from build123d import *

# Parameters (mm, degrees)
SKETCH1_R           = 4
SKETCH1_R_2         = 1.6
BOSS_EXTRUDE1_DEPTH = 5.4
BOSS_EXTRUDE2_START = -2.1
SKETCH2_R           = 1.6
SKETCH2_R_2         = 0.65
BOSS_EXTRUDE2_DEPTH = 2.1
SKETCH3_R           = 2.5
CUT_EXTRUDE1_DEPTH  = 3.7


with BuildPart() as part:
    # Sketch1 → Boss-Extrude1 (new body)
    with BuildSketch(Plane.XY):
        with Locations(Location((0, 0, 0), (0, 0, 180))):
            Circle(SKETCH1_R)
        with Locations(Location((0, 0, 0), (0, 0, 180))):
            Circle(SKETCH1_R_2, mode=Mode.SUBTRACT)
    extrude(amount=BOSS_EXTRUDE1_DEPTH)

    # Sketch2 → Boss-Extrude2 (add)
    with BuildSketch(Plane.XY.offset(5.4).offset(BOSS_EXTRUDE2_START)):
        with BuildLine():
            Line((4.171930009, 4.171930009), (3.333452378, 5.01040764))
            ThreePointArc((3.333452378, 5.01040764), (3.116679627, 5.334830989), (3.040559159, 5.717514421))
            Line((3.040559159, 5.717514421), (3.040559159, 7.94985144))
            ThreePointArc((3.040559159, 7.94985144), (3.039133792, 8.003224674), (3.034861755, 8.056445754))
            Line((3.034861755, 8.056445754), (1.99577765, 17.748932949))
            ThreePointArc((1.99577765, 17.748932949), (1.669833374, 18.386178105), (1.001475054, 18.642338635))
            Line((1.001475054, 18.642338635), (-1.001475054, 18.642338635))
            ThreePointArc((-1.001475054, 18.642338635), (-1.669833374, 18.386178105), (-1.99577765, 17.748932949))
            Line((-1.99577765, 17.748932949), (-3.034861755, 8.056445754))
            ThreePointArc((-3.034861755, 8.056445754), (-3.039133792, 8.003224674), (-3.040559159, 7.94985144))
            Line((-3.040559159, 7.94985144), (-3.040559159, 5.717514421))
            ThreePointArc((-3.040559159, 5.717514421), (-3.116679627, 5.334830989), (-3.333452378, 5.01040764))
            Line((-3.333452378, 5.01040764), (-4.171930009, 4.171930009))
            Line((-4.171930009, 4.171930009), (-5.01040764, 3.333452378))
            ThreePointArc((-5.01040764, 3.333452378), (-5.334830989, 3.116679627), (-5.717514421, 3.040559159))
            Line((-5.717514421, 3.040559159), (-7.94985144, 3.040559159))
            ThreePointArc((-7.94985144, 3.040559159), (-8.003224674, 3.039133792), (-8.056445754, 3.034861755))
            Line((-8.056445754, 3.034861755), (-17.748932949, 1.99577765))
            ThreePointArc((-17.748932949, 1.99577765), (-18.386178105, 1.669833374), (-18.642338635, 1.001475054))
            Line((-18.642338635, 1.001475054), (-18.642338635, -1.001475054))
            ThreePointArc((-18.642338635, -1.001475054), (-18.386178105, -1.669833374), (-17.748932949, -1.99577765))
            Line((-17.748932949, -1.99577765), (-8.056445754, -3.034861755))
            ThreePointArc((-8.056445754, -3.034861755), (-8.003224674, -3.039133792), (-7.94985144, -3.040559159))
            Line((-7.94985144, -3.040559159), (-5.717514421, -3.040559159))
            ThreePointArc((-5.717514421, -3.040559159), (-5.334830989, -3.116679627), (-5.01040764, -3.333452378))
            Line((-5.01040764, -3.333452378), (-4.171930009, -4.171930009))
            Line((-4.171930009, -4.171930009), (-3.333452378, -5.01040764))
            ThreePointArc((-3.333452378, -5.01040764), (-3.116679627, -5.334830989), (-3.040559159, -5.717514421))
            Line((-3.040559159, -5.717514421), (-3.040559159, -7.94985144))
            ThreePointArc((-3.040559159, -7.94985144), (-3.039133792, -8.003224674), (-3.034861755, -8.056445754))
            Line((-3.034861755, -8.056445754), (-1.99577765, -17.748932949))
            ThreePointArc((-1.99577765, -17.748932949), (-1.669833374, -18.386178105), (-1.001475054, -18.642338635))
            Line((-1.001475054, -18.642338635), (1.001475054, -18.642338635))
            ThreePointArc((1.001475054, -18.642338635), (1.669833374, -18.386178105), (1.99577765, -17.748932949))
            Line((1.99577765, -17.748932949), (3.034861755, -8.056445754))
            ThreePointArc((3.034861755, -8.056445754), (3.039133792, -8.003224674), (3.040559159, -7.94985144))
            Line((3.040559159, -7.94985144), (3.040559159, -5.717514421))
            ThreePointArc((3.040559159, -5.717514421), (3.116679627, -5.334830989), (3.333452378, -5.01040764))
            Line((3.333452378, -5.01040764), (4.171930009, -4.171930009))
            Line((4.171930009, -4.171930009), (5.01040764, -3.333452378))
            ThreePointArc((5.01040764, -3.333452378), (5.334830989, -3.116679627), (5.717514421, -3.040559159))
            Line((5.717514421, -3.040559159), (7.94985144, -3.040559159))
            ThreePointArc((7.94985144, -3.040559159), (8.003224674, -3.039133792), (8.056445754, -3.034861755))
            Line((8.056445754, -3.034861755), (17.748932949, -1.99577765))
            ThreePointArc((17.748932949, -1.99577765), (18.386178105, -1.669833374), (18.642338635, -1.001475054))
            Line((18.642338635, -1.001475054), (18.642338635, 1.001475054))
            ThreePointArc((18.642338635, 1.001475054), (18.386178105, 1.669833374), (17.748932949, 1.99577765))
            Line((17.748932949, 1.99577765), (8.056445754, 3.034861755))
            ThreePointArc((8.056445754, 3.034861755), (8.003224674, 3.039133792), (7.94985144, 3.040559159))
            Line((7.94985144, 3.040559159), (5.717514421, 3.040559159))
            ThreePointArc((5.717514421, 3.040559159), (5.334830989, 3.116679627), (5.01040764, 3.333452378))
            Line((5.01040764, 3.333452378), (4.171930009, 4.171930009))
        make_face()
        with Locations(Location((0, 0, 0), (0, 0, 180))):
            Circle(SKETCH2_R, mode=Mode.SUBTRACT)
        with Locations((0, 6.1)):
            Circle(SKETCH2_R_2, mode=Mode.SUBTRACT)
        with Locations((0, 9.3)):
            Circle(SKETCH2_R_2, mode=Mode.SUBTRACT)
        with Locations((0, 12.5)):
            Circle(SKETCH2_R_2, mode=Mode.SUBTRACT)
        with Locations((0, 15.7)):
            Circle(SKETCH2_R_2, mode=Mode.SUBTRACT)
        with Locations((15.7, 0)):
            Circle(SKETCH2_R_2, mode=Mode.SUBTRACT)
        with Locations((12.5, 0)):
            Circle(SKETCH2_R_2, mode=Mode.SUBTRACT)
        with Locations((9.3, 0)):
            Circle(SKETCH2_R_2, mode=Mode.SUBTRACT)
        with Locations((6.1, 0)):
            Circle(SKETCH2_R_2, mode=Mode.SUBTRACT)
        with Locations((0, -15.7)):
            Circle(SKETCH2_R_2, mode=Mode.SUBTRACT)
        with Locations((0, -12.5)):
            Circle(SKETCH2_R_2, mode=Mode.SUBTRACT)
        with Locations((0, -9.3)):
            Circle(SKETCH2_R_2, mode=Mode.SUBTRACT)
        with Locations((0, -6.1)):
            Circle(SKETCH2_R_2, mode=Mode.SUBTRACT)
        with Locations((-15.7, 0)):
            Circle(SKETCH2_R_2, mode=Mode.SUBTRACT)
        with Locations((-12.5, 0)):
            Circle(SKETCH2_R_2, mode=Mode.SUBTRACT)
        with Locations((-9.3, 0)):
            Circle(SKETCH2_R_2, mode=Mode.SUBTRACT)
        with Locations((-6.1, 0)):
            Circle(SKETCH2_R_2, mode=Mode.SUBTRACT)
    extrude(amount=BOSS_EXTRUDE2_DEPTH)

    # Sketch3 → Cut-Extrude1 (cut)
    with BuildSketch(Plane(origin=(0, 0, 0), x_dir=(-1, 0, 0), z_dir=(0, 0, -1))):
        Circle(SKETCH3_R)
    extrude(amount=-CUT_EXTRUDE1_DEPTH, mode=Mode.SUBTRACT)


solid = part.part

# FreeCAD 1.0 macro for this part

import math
import FreeCAD as App
import Part
import Sketcher
from FreeCAD import Vector
Q = App.Units.Quantity

doc = App.newDocument("Part")
body = doc.addObject("PartDesign::Body", "Body")

sketch1 = doc.addObject("Sketcher::SketchObject", "Sketch")
body.addObject(sketch1)
sketch1.AttachmentSupport = (doc.XY_Plane, [""])
sketch1.MapMode = "FlatFace"
sketch1.addGeometry(Part.Circle(Vector(0, 0, 0), Vector(0, 0, 1), 4), False)
sketch1.addGeometry(Part.Circle(Vector(0, 0, 0), Vector(0, 0, 1), 1.6), False)
sketch1.addConstraint(Sketcher.Constraint("Coincident", 0, 3, -1, 1))
sketch1.addConstraint(Sketcher.Constraint("Coincident", 1, 3, -1, 1))
sketch1.addConstraint(Sketcher.Constraint("Diameter", 0, Q("8 mm")))
sketch1.addConstraint(Sketcher.Constraint("Diameter", 1, Q("3.2 mm")))
pad1 = doc.addObject("PartDesign::Pad", "Pad")
body.addObject(pad1)
pad1.Profile = sketch1
pad1.Length = 5.4

sketch2 = doc.addObject("Sketcher::SketchObject", "Sketch001")
body.addObject(sketch2)
sketch2.AttachmentSupport = (doc.XY_Plane, [""])
sketch2.MapMode = "FlatFace"
sketch2.AttachmentOffset = App.Placement(Vector(0, 0, 3.3), App.Rotation())
sketch2.addGeometry(Part.ArcOfCircle(Part.Circle(Vector(4.040559, 5.717514, 0), Vector(0, 0, 1), 1), math.radians(-180), math.radians(-135)), False)
sketch2.addGeometry(Part.LineSegment(Vector(3.040559, 5.717514, 0), Vector(3.040559, 7.949851, 0)), False)
sketch2.addGeometry(Part.ArcOfCircle(Part.Circle(Vector(2.040559, 7.949851, 0), Vector(0, 0, 1), 1), math.radians(0), math.radians(6.119029)), False)
sketch2.addGeometry(Part.LineSegment(Vector(3.034862, 8.056446, 0), Vector(1.995778, 17.748933, 0)), False)
sketch2.addGeometry(Part.ArcOfCircle(Part.Circle(Vector(1.001475, 17.642339, 0), Vector(0, 0, 1), 1), math.radians(6.11903), math.radians(90)), False)
sketch2.addGeometry(Part.LineSegment(Vector(1.001475, 18.642339, 0), Vector(-1.001475, 18.642339, 0)), False)
sketch2.addGeometry(Part.ArcOfCircle(Part.Circle(Vector(-1.001475, 17.642339, 0), Vector(0, 0, 1), 1), math.radians(90), math.radians(173.88097)), False)
sketch2.addGeometry(Part.LineSegment(Vector(-1.995778, 17.748933, 0), Vector(-3.034862, 8.056446, 0)), False)
sketch2.addGeometry(Part.ArcOfCircle(Part.Circle(Vector(-2.040559, 7.949851, 0), Vector(0, 0, 1), 1), math.radians(173.880971), math.radians(180)), False)
sketch2.addGeometry(Part.LineSegment(Vector(-3.040559, 7.949851, 0), Vector(-3.040559, 5.717514, 0)), False)
sketch2.addGeometry(Part.ArcOfCircle(Part.Circle(Vector(-4.040559, 5.717514, 0), Vector(0, 0, 1), 1), math.radians(-45), math.radians(0)), False)
sketch2.addGeometry(Part.LineSegment(Vector(-3.333452, 5.010408, 0), Vector(-5.010408, 3.333452, 0)), False)
sketch2.addGeometry(Part.ArcOfCircle(Part.Circle(Vector(-5.717514, 4.040559, 0), Vector(0, 0, 1), 1), math.radians(-90), math.radians(-45)), False)
sketch2.addGeometry(Part.LineSegment(Vector(-5.717514, 3.040559, 0), Vector(-7.949851, 3.040559, 0)), False)
sketch2.addGeometry(Part.ArcOfCircle(Part.Circle(Vector(-7.949851, 2.040559, 0), Vector(0, 0, 1), 1), math.radians(90), math.radians(96.119029)), False)
sketch2.addGeometry(Part.LineSegment(Vector(-8.056446, 3.034862, 0), Vector(-17.748933, 1.995778, 0)), False)
sketch2.addGeometry(Part.ArcOfCircle(Part.Circle(Vector(-17.642339, 1.001475, 0), Vector(0, 0, 1), 1), math.radians(96.11903), math.radians(180)), False)
sketch2.addGeometry(Part.LineSegment(Vector(-18.642339, 1.001475, 0), Vector(-18.642339, -1.001475, 0)), False)
sketch2.addGeometry(Part.ArcOfCircle(Part.Circle(Vector(-17.642339, -1.001475, 0), Vector(0, 0, 1), 1), math.radians(180), math.radians(263.88097)), False)
sketch2.addGeometry(Part.LineSegment(Vector(-17.748933, -1.995778, 0), Vector(-8.056446, -3.034862, 0)), False)
sketch2.addGeometry(Part.ArcOfCircle(Part.Circle(Vector(-7.949851, -2.040559, 0), Vector(0, 0, 1), 1), math.radians(-96.119029), math.radians(-90)), False)
sketch2.addGeometry(Part.LineSegment(Vector(-7.949851, -3.040559, 0), Vector(-5.717514, -3.040559, 0)), False)
sketch2.addGeometry(Part.ArcOfCircle(Part.Circle(Vector(-5.717514, -4.040559, 0), Vector(0, 0, 1), 1), math.radians(45), math.radians(90)), False)
sketch2.addGeometry(Part.LineSegment(Vector(-5.010408, -3.333452, 0), Vector(-3.333452, -5.010408, 0)), False)
sketch2.addGeometry(Part.ArcOfCircle(Part.Circle(Vector(-4.040559, -5.717514, 0), Vector(0, 0, 1), 1), math.radians(0), math.radians(45)), False)
sketch2.addGeometry(Part.LineSegment(Vector(-3.040559, -5.717514, 0), Vector(-3.040559, -7.949851, 0)), False)
sketch2.addGeometry(Part.ArcOfCircle(Part.Circle(Vector(-2.040559, -7.949851, 0), Vector(0, 0, 1), 1), math.radians(-180), math.radians(-173.880971)), False)
sketch2.addGeometry(Part.LineSegment(Vector(-3.034862, -8.056446, 0), Vector(-1.995778, -17.748933, 0)), False)
sketch2.addGeometry(Part.ArcOfCircle(Part.Circle(Vector(-1.001475, -17.642339, 0), Vector(0, 0, 1), 1), math.radians(-173.88097), math.radians(-90)), False)
sketch2.addGeometry(Part.LineSegment(Vector(-1.001475, -18.642339, 0), Vector(1.001475, -18.642339, 0)), False)
sketch2.addGeometry(Part.ArcOfCircle(Part.Circle(Vector(1.001475, -17.642339, 0), Vector(0, 0, 1), 1), math.radians(-90), math.radians(-6.11903)), False)
sketch2.addGeometry(Part.LineSegment(Vector(1.995778, -17.748933, 0), Vector(3.034862, -8.056446, 0)), False)
sketch2.addGeometry(Part.ArcOfCircle(Part.Circle(Vector(2.040559, -7.949851, 0), Vector(0, 0, 1), 1), math.radians(-6.119029), math.radians(0)), False)
sketch2.addGeometry(Part.LineSegment(Vector(3.040559, -7.949851, 0), Vector(3.040559, -5.717514, 0)), False)
sketch2.addGeometry(Part.ArcOfCircle(Part.Circle(Vector(4.040559, -5.717514, 0), Vector(0, 0, 1), 1), math.radians(135), math.radians(180)), False)
sketch2.addGeometry(Part.LineSegment(Vector(3.333452, -5.010408, 0), Vector(5.010408, -3.333452, 0)), False)
sketch2.addGeometry(Part.ArcOfCircle(Part.Circle(Vector(5.717514, -4.040559, 0), Vector(0, 0, 1), 1), math.radians(90), math.radians(135)), False)
sketch2.addGeometry(Part.LineSegment(Vector(5.717514, -3.040559, 0), Vector(7.949851, -3.040559, 0)), False)
sketch2.addGeometry(Part.ArcOfCircle(Part.Circle(Vector(7.949851, -2.040559, 0), Vector(0, 0, 1), 1), math.radians(-90), math.radians(-83.880971)), False)
sketch2.addGeometry(Part.LineSegment(Vector(8.056446, -3.034862, 0), Vector(17.748933, -1.995778, 0)), False)
sketch2.addGeometry(Part.ArcOfCircle(Part.Circle(Vector(17.642339, -1.001475, 0), Vector(0, 0, 1), 1), math.radians(-83.88097), math.radians(0)), False)
sketch2.addGeometry(Part.LineSegment(Vector(18.642339, -1.001475, 0), Vector(18.642339, 1.001475, 0)), False)
sketch2.addGeometry(Part.ArcOfCircle(Part.Circle(Vector(17.642339, 1.001475, 0), Vector(0, 0, 1), 1), math.radians(0), math.radians(83.88097)), False)
sketch2.addGeometry(Part.LineSegment(Vector(17.748933, 1.995778, 0), Vector(8.056446, 3.034862, 0)), False)
sketch2.addGeometry(Part.ArcOfCircle(Part.Circle(Vector(7.949851, 2.040559, 0), Vector(0, 0, 1), 1), math.radians(83.880971), math.radians(90)), False)
sketch2.addGeometry(Part.LineSegment(Vector(7.949851, 3.040559, 0), Vector(5.717514, 3.040559, 0)), False)
sketch2.addGeometry(Part.ArcOfCircle(Part.Circle(Vector(5.717514, 4.040559, 0), Vector(0, 0, 1), 1), math.radians(-135), math.radians(-90)), False)
sketch2.addGeometry(Part.LineSegment(Vector(5.010408, 3.333452, 0), Vector(3.333452, 5.010408, 0)), False)
sketch2.addGeometry(Part.Circle(Vector(0, -15.7, 0), Vector(0, 0, 1), 0.65), False)
sketch2.addGeometry(Part.Circle(Vector(0, -12.5, 0), Vector(0, 0, 1), 0.65), False)
sketch2.addGeometry(Part.Circle(Vector(0, -9.3, 0), Vector(0, 0, 1), 0.65), False)
sketch2.addGeometry(Part.Circle(Vector(0, -6.1, 0), Vector(0, 0, 1), 0.65), False)
sketch2.addGeometry(Part.Circle(Vector(-15.7, 0, 0), Vector(0, 0, 1), 0.65), False)
sketch2.addGeometry(Part.Circle(Vector(-12.5, 0, 0), Vector(0, 0, 1), 0.65), False)
sketch2.addGeometry(Part.Circle(Vector(-9.3, 0, 0), Vector(0, 0, 1), 0.65), False)
sketch2.addGeometry(Part.Circle(Vector(-6.1, 0, 0), Vector(0, 0, 1), 0.65), False)
sketch2.addGeometry(Part.Circle(Vector(0, 0, 0), Vector(0, 0, 1), 1.6), False)
sketch2.addGeometry(Part.Circle(Vector(6.1, 0, 0), Vector(0, 0, 1), 0.65), False)
sketch2.addGeometry(Part.Circle(Vector(0, 6.1, 0), Vector(0, 0, 1), 0.65), False)
sketch2.addGeometry(Part.Circle(Vector(9.3, 0, 0), Vector(0, 0, 1), 0.65), False)
sketch2.addGeometry(Part.Circle(Vector(12.5, 0, 0), Vector(0, 0, 1), 0.65), False)
sketch2.addGeometry(Part.Circle(Vector(15.7, 0, 0), Vector(0, 0, 1), 0.65), False)
sketch2.addGeometry(Part.Circle(Vector(0, 9.3, 0), Vector(0, 0, 1), 0.65), False)
sketch2.addGeometry(Part.Circle(Vector(0, 12.5, 0), Vector(0, 0, 1), 0.65), False)
sketch2.addGeometry(Part.Circle(Vector(0, 15.7, 0), Vector(0, 0, 1), 0.65), False)
sketch2.addConstraint(Sketcher.Constraint("Tangent", 0, 1, 1, 1))
sketch2.addConstraint(Sketcher.Constraint("Tangent", 1, 2, 2, 1))
sketch2.addConstraint(Sketcher.Constraint("Tangent", 2, 2, 3, 1))
sketch2.addConstraint(Sketcher.Constraint("Tangent", 3, 2, 4, 1))
sketch2.addConstraint(Sketcher.Constraint("Tangent", 4, 2, 5, 1))
sketch2.addConstraint(Sketcher.Constraint("Tangent", 5, 2, 6, 1))
sketch2.addConstraint(Sketcher.Constraint("Tangent", 6, 2, 7, 1))
sketch2.addConstraint(Sketcher.Constraint("Tangent", 7, 2, 8, 1))
sketch2.addConstraint(Sketcher.Constraint("Tangent", 8, 2, 9, 1))
sketch2.addConstraint(Sketcher.Constraint("Tangent", 9, 2, 10, 2))
sketch2.addConstraint(Sketcher.Constraint("Tangent", 10, 1, 11, 1))
sketch2.addConstraint(Sketcher.Constraint("Tangent", 11, 2, 12, 2))
sketch2.addConstraint(Sketcher.Constraint("Tangent", 12, 1, 13, 1))
sketch2.addConstraint(Sketcher.Constraint("Tangent", 13, 2, 14, 1))
sketch2.addConstraint(Sketcher.Constraint("Tangent", 14, 2, 15, 1))
sketch2.addConstraint(Sketcher.Constraint("Tangent", 15, 2, 16, 1))
sketch2.addConstraint(Sketcher.Constraint("Tangent", 16, 2, 17, 1))
sketch2.addConstraint(Sketcher.Constraint("Tangent", 17, 2, 18, 1))
sketch2.addConstraint(Sketcher.Constraint("Tangent", 18, 2, 19, 1))
sketch2.addConstraint(Sketcher.Constraint("Tangent", 19, 2, 20, 1))
sketch2.addConstraint(Sketcher.Constraint("Tangent", 20, 2, 21, 1))
sketch2.addConstraint(Sketcher.Constraint("Tangent", 21, 2, 22, 2))
sketch2.addConstraint(Sketcher.Constraint("Tangent", 22, 1, 23, 1))
sketch2.addConstraint(Sketcher.Constraint("Tangent", 23, 2, 24, 2))
sketch2.addConstraint(Sketcher.Constraint("Tangent", 24, 1, 25, 1))
sketch2.addConstraint(Sketcher.Constraint("Tangent", 25, 2, 26, 1))
sketch2.addConstraint(Sketcher.Constraint("Tangent", 26, 2, 27, 1))
sketch2.addConstraint(Sketcher.Constraint("Tangent", 27, 2, 28, 1))
sketch2.addConstraint(Sketcher.Constraint("Tangent", 28, 2, 29, 1))
sketch2.addConstraint(Sketcher.Constraint("Tangent", 29, 2, 30, 1))
sketch2.addConstraint(Sketcher.Constraint("Tangent", 30, 2, 31, 1))
sketch2.addConstraint(Sketcher.Constraint("Tangent", 31, 2, 32, 1))
sketch2.addConstraint(Sketcher.Constraint("Tangent", 32, 2, 33, 1))
sketch2.addConstraint(Sketcher.Constraint("Tangent", 33, 2, 34, 2))
sketch2.addConstraint(Sketcher.Constraint("Tangent", 34, 1, 35, 1))
sketch2.addConstraint(Sketcher.Constraint("Tangent", 35, 2, 36, 2))
sketch2.addConstraint(Sketcher.Constraint("Tangent", 36, 1, 37, 1))
sketch2.addConstraint(Sketcher.Constraint("Tangent", 37, 2, 38, 1))
sketch2.addConstraint(Sketcher.Constraint("Tangent", 38, 2, 39, 1))
sketch2.addConstraint(Sketcher.Constraint("Tangent", 39, 2, 40, 1))
sketch2.addConstraint(Sketcher.Constraint("Tangent", 40, 2, 41, 1))
sketch2.addConstraint(Sketcher.Constraint("Tangent", 41, 2, 42, 1))
sketch2.addConstraint(Sketcher.Constraint("Tangent", 42, 2, 43, 1))
sketch2.addConstraint(Sketcher.Constraint("Tangent", 43, 2, 44, 1))
sketch2.addConstraint(Sketcher.Constraint("Tangent", 44, 2, 45, 1))
sketch2.addConstraint(Sketcher.Constraint("Tangent", 45, 2, 46, 2))
sketch2.addConstraint(Sketcher.Constraint("Tangent", 46, 1, 47, 1))
sketch2.addConstraint(Sketcher.Constraint("Tangent", 47, 2, 0, 2))
sketch2.addConstraint(Sketcher.Constraint("Vertical", 1))
sketch2.addConstraint(Sketcher.Constraint("Horizontal", 5))
sketch2.addConstraint(Sketcher.Constraint("Vertical", 9))
sketch2.addConstraint(Sketcher.Constraint("Horizontal", 13))
sketch2.addConstraint(Sketcher.Constraint("Vertical", 17))
sketch2.addConstraint(Sketcher.Constraint("Horizontal", 21))
sketch2.addConstraint(Sketcher.Constraint("Vertical", 25))
sketch2.addConstraint(Sketcher.Constraint("Horizontal", 29))
sketch2.addConstraint(Sketcher.Constraint("Vertical", 33))
sketch2.addConstraint(Sketcher.Constraint("Horizontal", 37))
sketch2.addConstraint(Sketcher.Constraint("Vertical", 41))
sketch2.addConstraint(Sketcher.Constraint("Horizontal", 45))
sketch2.addConstraint(Sketcher.Constraint("Coincident", 56, 3, -1, 1))
sketch2.addConstraint(Sketcher.Constraint("Equal", 0, 2))
sketch2.addConstraint(Sketcher.Constraint("Equal", 2, 4))
sketch2.addConstraint(Sketcher.Constraint("Equal", 4, 6))
sketch2.addConstraint(Sketcher.Constraint("Equal", 6, 8))
sketch2.addConstraint(Sketcher.Constraint("Equal", 8, 10))
sketch2.addConstraint(Sketcher.Constraint("Equal", 10, 12))
sketch2.addConstraint(Sketcher.Constraint("Equal", 12, 14))
sketch2.addConstraint(Sketcher.Constraint("Equal", 14, 16))
sketch2.addConstraint(Sketcher.Constraint("Equal", 16, 18))
sketch2.addConstraint(Sketcher.Constraint("Equal", 18, 20))
sketch2.addConstraint(Sketcher.Constraint("Equal", 20, 22))
sketch2.addConstraint(Sketcher.Constraint("Equal", 22, 24))
sketch2.addConstraint(Sketcher.Constraint("Equal", 24, 26))
sketch2.addConstraint(Sketcher.Constraint("Equal", 26, 28))
sketch2.addConstraint(Sketcher.Constraint("Equal", 28, 30))
sketch2.addConstraint(Sketcher.Constraint("Equal", 30, 32))
sketch2.addConstraint(Sketcher.Constraint("Equal", 32, 34))
sketch2.addConstraint(Sketcher.Constraint("Equal", 34, 36))
sketch2.addConstraint(Sketcher.Constraint("Equal", 36, 38))
sketch2.addConstraint(Sketcher.Constraint("Equal", 38, 40))
sketch2.addConstraint(Sketcher.Constraint("Equal", 40, 42))
sketch2.addConstraint(Sketcher.Constraint("Equal", 42, 44))
sketch2.addConstraint(Sketcher.Constraint("Equal", 44, 46))
sketch2.addConstraint(Sketcher.Constraint("Equal", 48, 49))
sketch2.addConstraint(Sketcher.Constraint("Equal", 49, 50))
sketch2.addConstraint(Sketcher.Constraint("Equal", 50, 51))
sketch2.addConstraint(Sketcher.Constraint("Equal", 51, 52))
sketch2.addConstraint(Sketcher.Constraint("Equal", 52, 53))
sketch2.addConstraint(Sketcher.Constraint("Equal", 53, 54))
sketch2.addConstraint(Sketcher.Constraint("Equal", 54, 55))
sketch2.addConstraint(Sketcher.Constraint("Equal", 55, 57))
sketch2.addConstraint(Sketcher.Constraint("Equal", 57, 58))
sketch2.addConstraint(Sketcher.Constraint("Equal", 58, 59))
sketch2.addConstraint(Sketcher.Constraint("Equal", 59, 60))
sketch2.addConstraint(Sketcher.Constraint("Equal", 60, 61))
sketch2.addConstraint(Sketcher.Constraint("Equal", 61, 62))
sketch2.addConstraint(Sketcher.Constraint("Equal", 62, 63))
sketch2.addConstraint(Sketcher.Constraint("Equal", 63, 64))
sketch2.addConstraint(Sketcher.Constraint("Symmetric", 0, 3, 24, 3, -1, 1))
sketch2.addConstraint(Sketcher.Constraint("Symmetric", 4, 3, 28, 3, -1, 1))
sketch2.addConstraint(Sketcher.Constraint("Symmetric", 8, 3, 32, 3, -1, 1))
sketch2.addConstraint(Sketcher.Constraint("Symmetric", 12, 3, 36, 3, -1, 1))
sketch2.addConstraint(Sketcher.Constraint("Symmetric", 16, 3, 40, 3, -1, 1))
sketch2.addConstraint(Sketcher.Constraint("Symmetric", 20, 3, 44, 3, -1, 1))
sketch2.addConstraint(Sketcher.Constraint("Symmetric", 55, 3, 57, 3, -1, 1))
sketch2.addConstraint(Sketcher.Constraint("Symmetric", 51, 3, 58, 3, -1, 1))
sketch2.addConstraint(Sketcher.Constraint("Symmetric", 54, 3, 59, 3, -1, 1))
sketch2.addConstraint(Sketcher.Constraint("Symmetric", 53, 3, 60, 3, -1, 1))
sketch2.addConstraint(Sketcher.Constraint("Symmetric", 52, 3, 61, 3, -1, 1))
sketch2.addConstraint(Sketcher.Constraint("Symmetric", 50, 3, 62, 3, -1, 1))
sketch2.addConstraint(Sketcher.Constraint("Symmetric", 49, 3, 63, 3, -1, 1))
sketch2.addConstraint(Sketcher.Constraint("Symmetric", 48, 3, 64, 3, -1, 1))
sketch2.addConstraint(Sketcher.Constraint("Symmetric", 2, 3, 8, 3, -2))
sketch2.addConstraint(Sketcher.Constraint("Symmetric", 22, 3, 36, 3, -2))
sketch2.addConstraint(Sketcher.Constraint("Symmetric", 27, 2, 30, 2, -2))
sketch2.addConstraint(Sketcher.Constraint("Symmetric", 19, 2, 38, 2, -2))
sketch2.addConstraint(Sketcher.Constraint("Symmetric", 15, 2, 42, 2, -2))
sketch2.addConstraint(Sketcher.Constraint("Symmetric", 11, 2, 46, 1, -2))
sketch2.addConstraint(Sketcher.Constraint("PointOnObject", 48, 3, -2))
sketch2.addConstraint(Sketcher.Constraint("PointOnObject", 49, 3, -2))
sketch2.addConstraint(Sketcher.Constraint("PointOnObject", 50, 3, -2))
sketch2.addConstraint(Sketcher.Constraint("PointOnObject", 51, 3, -2))
sketch2.addConstraint(Sketcher.Constraint("PointOnObject", 52, 3, -1))
sketch2.addConstraint(Sketcher.Constraint("PointOnObject", 53, 3, -1))
sketch2.addConstraint(Sketcher.Constraint("PointOnObject", 54, 3, -1))
sketch2.addConstraint(Sketcher.Constraint("PointOnObject", 55, 3, -1))
sketch2.addConstraint(Sketcher.Constraint("Perpendicular", 3, 15))
sketch2.addConstraint(Sketcher.Constraint("Perpendicular", 7, 19))
sketch2.addConstraint(Sketcher.Constraint("Perpendicular", 11, 23))
sketch2.addConstraint(Sketcher.Constraint("Perpendicular", 23, 35))
sketch2.addConstraint(Sketcher.Constraint("Equal", 45, 1))
sketch2.addConstraint(Sketcher.Constraint("Equal", 29, 17))
sketch2.addConstraint(Sketcher.Constraint("Equal", 7, 15))
sketch2.addConstraint(Sketcher.Constraint("Radius", 0, Q("1 mm")))
sketch2.addConstraint(Sketcher.Constraint("Diameter", 48, Q("1.3 mm")))
sketch2.addConstraint(Sketcher.Constraint("Diameter", 56, Q("3.2 mm")))
sketch2.addConstraint(Sketcher.Constraint("DistanceY", 48, 3, -1, 1, Q("15.7 mm")))
sketch2.addConstraint(Sketcher.Constraint("DistanceY", 49, 3, -1, 1, Q("12.5 mm")))
sketch2.addConstraint(Sketcher.Constraint("DistanceY", 50, 3, -1, 1, Q("9.3 mm")))
sketch2.addConstraint(Sketcher.Constraint("DistanceY", 51, 3, -1, 1, Q("6.1 mm")))
sketch2.addConstraint(Sketcher.Constraint("DistanceX", 52, 3, -1, 1, Q("15.7 mm")))
sketch2.addConstraint(Sketcher.Constraint("DistanceX", 53, 3, -1, 1, Q("12.5 mm")))
sketch2.addConstraint(Sketcher.Constraint("DistanceX", 54, 3, -1, 1, Q("9.3 mm")))
sketch2.addConstraint(Sketcher.Constraint("DistanceX", 55, 3, -1, 1, Q("6.1 mm")))
sketch2.addConstraint(Sketcher.Constraint("DistanceX", 5, 2, 5, 1, Q("2.00295 mm")))
sketch2.addConstraint(Sketcher.Constraint("DistanceX", 13, 2, 13, 1, Q("2.232337 mm")))
sketch2.addConstraint(Sketcher.Constraint("DistanceX", -1, 1, 0, 3, Q("4.040559 mm")))
sketch2.addConstraint(Sketcher.Constraint("DistanceY", -1, 1, 2, 3, Q("7.949851 mm")))
sketch2.addConstraint(Sketcher.Constraint("DistanceY", -1, 1, 4, 3, Q("17.642339 mm")))
pad2 = doc.addObject("PartDesign::Pad", "Pad001")
body.addObject(pad2)
pad2.Profile = sketch2
pad2.Length = 2.1

sketch3 = doc.addObject("Sketcher::SketchObject", "Sketch002")
body.addObject(sketch3)
sketch3.AttachmentSupport = (doc.XY_Plane, [""])
sketch3.MapMode = "FlatFace"
sketch3.addGeometry(Part.Circle(Vector(0, 0, 0), Vector(0, 0, 1), 2.5), False)
sketch3.addConstraint(Sketcher.Constraint("Coincident", 0, 3, -1, 1))
sketch3.addConstraint(Sketcher.Constraint("Diameter", 0, Q("5 mm")))
pocket1 = doc.addObject("PartDesign::Pocket", "Pocket")
body.addObject(pocket1)
pocket1.Profile = sketch3
pocket1.Length = 3.7
pocket1.Reversed = True

doc.recompute()
